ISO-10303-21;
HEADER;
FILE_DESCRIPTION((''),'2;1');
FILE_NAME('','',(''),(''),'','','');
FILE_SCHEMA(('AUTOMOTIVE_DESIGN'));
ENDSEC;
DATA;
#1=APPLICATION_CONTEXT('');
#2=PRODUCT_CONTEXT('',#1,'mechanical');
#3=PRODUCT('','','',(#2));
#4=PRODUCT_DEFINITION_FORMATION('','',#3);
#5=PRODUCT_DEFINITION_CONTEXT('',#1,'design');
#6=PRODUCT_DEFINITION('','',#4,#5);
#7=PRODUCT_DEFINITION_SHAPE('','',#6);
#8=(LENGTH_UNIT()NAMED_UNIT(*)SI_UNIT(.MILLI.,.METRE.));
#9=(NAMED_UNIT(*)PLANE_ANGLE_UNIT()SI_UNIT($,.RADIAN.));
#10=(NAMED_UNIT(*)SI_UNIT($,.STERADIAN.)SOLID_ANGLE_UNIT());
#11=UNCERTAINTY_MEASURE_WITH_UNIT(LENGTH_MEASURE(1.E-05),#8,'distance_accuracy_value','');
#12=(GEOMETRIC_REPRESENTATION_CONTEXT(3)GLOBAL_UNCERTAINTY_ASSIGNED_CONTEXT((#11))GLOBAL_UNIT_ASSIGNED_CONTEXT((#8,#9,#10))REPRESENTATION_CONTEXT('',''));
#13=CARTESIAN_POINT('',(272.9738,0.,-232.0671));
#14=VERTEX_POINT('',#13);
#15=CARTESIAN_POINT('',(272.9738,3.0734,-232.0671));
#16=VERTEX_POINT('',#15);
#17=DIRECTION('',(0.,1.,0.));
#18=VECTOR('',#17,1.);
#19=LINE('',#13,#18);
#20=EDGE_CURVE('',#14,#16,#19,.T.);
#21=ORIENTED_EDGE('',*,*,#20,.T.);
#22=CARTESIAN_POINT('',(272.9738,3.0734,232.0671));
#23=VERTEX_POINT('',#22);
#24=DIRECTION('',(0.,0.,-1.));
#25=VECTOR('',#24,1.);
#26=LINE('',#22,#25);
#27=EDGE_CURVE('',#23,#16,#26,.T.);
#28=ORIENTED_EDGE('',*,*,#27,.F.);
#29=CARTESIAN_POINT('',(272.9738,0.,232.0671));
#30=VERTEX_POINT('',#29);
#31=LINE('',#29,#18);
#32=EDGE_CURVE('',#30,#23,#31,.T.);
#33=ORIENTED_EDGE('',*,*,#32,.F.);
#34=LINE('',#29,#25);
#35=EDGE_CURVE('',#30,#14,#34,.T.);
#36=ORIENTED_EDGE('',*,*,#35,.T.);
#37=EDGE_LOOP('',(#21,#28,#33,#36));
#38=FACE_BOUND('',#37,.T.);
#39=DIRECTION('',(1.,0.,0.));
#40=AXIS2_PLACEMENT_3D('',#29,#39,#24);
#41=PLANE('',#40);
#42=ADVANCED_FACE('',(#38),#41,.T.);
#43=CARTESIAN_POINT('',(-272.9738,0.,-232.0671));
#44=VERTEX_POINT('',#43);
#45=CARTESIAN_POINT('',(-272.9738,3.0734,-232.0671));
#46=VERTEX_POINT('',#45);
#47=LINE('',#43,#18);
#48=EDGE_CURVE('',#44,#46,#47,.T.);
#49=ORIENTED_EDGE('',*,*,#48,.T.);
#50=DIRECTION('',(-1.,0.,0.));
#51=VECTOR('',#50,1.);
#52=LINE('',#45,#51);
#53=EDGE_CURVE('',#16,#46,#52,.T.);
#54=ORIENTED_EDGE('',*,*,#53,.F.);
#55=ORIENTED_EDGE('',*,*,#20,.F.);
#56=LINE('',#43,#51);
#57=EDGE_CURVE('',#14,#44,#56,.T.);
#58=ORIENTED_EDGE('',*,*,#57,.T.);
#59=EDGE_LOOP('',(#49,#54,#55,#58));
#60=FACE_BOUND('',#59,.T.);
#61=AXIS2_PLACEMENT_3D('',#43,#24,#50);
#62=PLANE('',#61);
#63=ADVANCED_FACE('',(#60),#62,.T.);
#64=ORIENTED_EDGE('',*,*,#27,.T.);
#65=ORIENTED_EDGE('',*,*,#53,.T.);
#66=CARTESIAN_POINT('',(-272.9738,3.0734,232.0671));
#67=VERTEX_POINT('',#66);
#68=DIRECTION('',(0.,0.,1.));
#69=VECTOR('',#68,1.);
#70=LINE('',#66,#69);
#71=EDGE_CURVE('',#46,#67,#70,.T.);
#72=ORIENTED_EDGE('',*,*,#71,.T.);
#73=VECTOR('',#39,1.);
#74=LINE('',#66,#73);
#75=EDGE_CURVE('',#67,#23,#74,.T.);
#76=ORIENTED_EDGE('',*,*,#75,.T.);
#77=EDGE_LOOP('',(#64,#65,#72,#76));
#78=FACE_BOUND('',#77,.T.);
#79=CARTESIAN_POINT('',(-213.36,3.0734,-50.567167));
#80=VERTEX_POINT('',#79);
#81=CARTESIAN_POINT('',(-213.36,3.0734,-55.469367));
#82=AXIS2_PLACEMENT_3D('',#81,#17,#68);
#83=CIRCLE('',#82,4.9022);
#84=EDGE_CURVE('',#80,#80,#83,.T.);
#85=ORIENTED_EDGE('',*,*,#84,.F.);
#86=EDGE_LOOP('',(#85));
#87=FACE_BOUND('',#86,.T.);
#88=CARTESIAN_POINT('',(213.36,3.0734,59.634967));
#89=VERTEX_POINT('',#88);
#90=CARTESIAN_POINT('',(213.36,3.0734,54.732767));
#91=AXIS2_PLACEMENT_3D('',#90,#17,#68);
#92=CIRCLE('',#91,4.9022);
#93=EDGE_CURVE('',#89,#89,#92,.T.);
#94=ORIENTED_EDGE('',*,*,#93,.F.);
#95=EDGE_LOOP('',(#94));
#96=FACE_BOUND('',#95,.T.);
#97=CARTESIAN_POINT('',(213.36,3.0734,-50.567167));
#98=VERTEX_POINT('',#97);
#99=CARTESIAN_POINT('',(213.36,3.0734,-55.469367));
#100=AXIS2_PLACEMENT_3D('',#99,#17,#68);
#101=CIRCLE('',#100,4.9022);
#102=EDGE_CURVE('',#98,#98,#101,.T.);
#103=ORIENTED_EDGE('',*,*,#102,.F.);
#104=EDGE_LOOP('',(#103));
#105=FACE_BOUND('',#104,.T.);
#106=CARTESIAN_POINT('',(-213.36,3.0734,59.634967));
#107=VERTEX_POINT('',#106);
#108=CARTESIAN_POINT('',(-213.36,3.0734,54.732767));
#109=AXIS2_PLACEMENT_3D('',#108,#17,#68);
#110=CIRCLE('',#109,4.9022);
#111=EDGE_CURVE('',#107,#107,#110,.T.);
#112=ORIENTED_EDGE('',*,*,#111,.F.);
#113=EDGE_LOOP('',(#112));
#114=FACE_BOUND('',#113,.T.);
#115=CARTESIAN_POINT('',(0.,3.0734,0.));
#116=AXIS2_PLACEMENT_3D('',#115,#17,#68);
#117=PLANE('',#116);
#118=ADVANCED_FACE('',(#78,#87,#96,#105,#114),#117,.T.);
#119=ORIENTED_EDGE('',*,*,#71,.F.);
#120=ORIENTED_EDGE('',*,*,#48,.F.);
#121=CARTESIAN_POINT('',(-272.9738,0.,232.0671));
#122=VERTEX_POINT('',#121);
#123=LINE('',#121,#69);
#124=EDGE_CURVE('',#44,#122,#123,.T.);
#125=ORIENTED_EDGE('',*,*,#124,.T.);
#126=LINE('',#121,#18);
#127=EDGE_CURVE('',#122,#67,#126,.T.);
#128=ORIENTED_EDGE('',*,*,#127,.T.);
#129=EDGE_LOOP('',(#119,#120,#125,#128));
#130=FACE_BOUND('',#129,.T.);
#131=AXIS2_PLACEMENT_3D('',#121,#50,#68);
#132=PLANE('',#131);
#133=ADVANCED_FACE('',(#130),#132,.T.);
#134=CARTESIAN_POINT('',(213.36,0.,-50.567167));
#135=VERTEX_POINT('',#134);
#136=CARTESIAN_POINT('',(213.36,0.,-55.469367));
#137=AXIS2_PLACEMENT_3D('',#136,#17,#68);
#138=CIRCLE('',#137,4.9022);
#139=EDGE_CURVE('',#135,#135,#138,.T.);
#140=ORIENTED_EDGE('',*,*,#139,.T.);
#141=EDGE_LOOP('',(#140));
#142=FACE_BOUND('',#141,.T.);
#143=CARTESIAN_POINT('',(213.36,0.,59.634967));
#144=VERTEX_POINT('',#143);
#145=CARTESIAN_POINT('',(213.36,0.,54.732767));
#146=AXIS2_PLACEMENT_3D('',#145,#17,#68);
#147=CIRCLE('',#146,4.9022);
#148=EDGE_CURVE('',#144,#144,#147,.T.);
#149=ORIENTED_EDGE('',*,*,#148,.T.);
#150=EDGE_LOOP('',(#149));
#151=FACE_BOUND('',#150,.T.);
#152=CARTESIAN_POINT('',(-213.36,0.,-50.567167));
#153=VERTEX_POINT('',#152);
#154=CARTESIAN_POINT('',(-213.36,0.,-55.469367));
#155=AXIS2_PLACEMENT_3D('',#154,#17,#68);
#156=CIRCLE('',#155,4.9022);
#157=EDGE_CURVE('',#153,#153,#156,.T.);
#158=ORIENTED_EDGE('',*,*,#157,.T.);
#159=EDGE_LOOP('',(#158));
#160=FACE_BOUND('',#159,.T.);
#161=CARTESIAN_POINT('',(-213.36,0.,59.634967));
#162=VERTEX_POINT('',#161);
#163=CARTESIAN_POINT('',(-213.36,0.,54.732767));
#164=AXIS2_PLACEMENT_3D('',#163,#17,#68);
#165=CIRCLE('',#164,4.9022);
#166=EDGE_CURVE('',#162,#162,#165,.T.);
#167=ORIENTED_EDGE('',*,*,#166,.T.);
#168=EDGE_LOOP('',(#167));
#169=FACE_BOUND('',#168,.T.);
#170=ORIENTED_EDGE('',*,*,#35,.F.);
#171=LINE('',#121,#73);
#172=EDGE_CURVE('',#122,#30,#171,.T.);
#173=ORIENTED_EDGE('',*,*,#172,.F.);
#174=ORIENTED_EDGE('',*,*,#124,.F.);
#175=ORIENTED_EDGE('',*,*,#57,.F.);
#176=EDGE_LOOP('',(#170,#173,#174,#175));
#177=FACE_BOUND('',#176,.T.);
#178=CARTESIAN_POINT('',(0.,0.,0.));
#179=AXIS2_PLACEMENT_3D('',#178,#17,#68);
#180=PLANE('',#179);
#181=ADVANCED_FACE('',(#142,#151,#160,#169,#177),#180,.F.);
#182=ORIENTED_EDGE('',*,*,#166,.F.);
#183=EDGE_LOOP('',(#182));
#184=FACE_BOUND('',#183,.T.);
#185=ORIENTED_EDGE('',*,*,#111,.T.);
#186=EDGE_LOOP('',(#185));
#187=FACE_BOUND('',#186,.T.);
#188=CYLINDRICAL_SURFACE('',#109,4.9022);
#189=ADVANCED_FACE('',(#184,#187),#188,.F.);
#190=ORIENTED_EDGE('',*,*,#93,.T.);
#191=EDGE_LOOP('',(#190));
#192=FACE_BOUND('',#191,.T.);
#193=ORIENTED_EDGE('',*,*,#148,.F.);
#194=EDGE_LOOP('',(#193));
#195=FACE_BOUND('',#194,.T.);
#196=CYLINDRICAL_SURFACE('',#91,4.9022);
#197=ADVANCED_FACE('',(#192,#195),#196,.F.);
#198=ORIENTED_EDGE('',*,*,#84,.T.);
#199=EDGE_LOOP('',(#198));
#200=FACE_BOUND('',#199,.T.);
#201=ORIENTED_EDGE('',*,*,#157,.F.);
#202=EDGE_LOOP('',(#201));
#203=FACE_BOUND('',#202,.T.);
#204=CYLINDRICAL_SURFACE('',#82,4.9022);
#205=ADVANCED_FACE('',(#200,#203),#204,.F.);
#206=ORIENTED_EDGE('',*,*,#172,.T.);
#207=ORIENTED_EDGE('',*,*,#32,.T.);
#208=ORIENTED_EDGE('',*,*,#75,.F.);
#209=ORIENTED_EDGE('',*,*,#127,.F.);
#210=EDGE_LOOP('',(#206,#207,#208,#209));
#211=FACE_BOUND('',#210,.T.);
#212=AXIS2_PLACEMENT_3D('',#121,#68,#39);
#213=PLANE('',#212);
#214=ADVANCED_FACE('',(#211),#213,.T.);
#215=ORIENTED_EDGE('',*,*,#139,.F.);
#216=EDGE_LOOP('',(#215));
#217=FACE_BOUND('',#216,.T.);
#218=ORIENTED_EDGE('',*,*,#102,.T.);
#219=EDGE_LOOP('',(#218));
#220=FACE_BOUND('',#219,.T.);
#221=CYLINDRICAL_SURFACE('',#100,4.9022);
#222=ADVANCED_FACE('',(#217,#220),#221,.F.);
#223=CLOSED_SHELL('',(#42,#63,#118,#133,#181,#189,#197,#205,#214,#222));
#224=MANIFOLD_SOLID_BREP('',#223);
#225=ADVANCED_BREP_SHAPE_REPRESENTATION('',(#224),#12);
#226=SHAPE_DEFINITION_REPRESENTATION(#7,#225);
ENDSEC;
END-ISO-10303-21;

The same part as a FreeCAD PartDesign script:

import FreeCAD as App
import Part
import Sketcher
from FreeCAD import Vector
Q = App.Units.Quantity


def add_polygon(sketch, points):
    """Adds a closed chain of lines whose ends are joined by coincident constraints."""
    first, n = sketch.GeometryCount, len(points)
    for a, b in zip(points, points[1:] + points[:1]):
        sketch.addGeometry(Part.LineSegment(App.Vector(*a, 0), App.Vector(*b, 0)), False)
    for i in range(n):
        sketch.addConstraint(Sketcher.Constraint("Coincident", first + i, 2, first + (i + 1) % n, 1))

doc = App.newDocument("Part")
body = doc.addObject("PartDesign::Body", "Body")

# Sketch on XZ plane
sketch1 = body.newObject("Sketcher::SketchObject", "Sketch")
sketch1.AttachmentSupport = (doc.getObject("XZ_Plane"), [""])
sketch1.MapMode = "FlatFace"
add_polygon(sketch1, [(-292.1, -251.1933), (-292.1, 251.1933), (292.1, 251.1933), (292.1, -251.1933)])  # lines 0-3
sketch1.addConstraint(Sketcher.Constraint("Vertical", 0))
sketch1.addConstraint(Sketcher.Constraint("Horizontal", 1))
sketch1.addConstraint(Sketcher.Constraint("Vertical", 2))
sketch1.addConstraint(Sketcher.Constraint("Horizontal", 3))
sketch1.addConstraint(Sketcher.Constraint("Symmetric", 0, 2, 2, 2, -1, 1))
sketch1.addConstraint(Sketcher.Constraint("DistanceX", 1, 1, 1, 2, Q("23 in")))
sketch1.addConstraint(Sketcher.Constraint("DistanceY", 0, 1, 0, 2, Q("19.779 in")))
pad1 = body.newObject("PartDesign::Pad", "Pad")
pad1.Profile = sketch1
pad1.Length = Q("0.121 in")
pad1.Reversed = True

# Sketch on XZ plane
sketch2 = body.newObject("Sketcher::SketchObject", "Sketch001")
sketch2.AttachmentSupport = (doc.getObject("XZ_Plane"), [""])
sketch2.MapMode = "FlatFace"
sketch2.AttachmentOffset = App.Placement(Vector(0, 0, -0.121 * 25.4), App.Rotation())
sketch2.addGeometry(Part.Circle(Vector(-213.36, -238.5949, 0), Vector(0, 0, 1), 2.8956), False)
sketch2.addGeometry(Part.Circle(Vector(-213.36, 237.8583, 0), Vector(0, 0, 1), 2.8956), False)
sketch2.addConstraint(Sketcher.Constraint("Equal", 0, 1))
sketch2.addConstraint(Sketcher.Constraint("Vertical", 0, 3, 1, 3))
sketch2.addConstraint(Sketcher.Constraint("Diameter", 0, Q("0.228 in")))
sketch2.addConstraint(Sketcher.Constraint("DistanceX", 0, 3, -1, 1, Q("8.4 in")))
sketch2.addConstraint(Sketcher.Constraint("DistanceY", 0, 3, 1, 3, Q("18.758 in")))
sketch2.addConstraint(Sketcher.Constraint("DistanceY", 0, 3, -1, 1, Q("9.3935 in")))
pocket1 = body.newObject("PartDesign::Pocket", "Pocket")
pocket1.Profile = sketch2
pocket1.Type = "ThroughAll"
pocket1.Reversed = True
doc.recompute()

linearpattern = body.newObject("PartDesign::LinearPattern", "LinearPattern")
linearpattern.Originals = [pocket1]
linearpattern.Direction = (doc.getObject("X_Axis"), [""])
linearpattern.Mode = "offset"
linearpattern.Offset = Q("5.6 in")
linearpattern.Occurrences = 4
body.Tip = linearpattern

# Sketch on XZ plane
sketch3 = body.newObject("Sketcher::SketchObject", "Sketch002")
sketch3.AttachmentSupport = (doc.getObject("XZ_Plane"), [""])
sketch3.MapMode = "FlatFace"
sketch3.AttachmentOffset = App.Placement(Vector(0, 0, -0.121 * 25.4), App.Rotation())
sketch3.addGeometry(Part.Circle(Vector(-279.5016, -165.6715, 0), Vector(0, 0, 1), 2.8956), False)
sketch3.addGeometry(Part.Circle(Vector(279.5016, -165.6715, 0), Vector(0, 0, 1), 2.8956), False)
sketch3.addConstraint(Sketcher.Constraint("Equal", 0, 1))
sketch3.addConstraint(Sketcher.Constraint("Symmetric", 0, 3, 1, 3, -2))
sketch3.addConstraint(Sketcher.Constraint("Diameter", 0, Q("0.228 in")))
sketch3.addConstraint(Sketcher.Constraint("DistanceX", 0, 3, -1, 1, Q("11.004 in")))
sketch3.addConstraint(Sketcher.Constraint("DistanceY", 0, 3, -1, 1, Q("6.5225 in")))
pocket2 = body.newObject("PartDesign::Pocket", "Pocket001")
pocket2.Profile = sketch3
pocket2.Type = "ThroughAll"
pocket2.Reversed = True
doc.recompute()

linearpattern2 = body.newObject("PartDesign::LinearPattern", "LinearPattern001")
linearpattern2.Originals = [pocket2]
linearpattern2.Direction = (doc.getObject("Z_Axis"), [""])
linearpattern2.Mode = "offset"
linearpattern2.Offset = 110.202133
linearpattern2.Occurrences = 4
body.Tip = linearpattern2

# Sketch on XZ plane
sketch4 = body.newObject("Sketcher::SketchObject", "Sketch003")
sketch4.AttachmentSupport = (doc.getObject("XZ_Plane"), [""])
sketch4.MapMode = "FlatFace"
sketch4.AttachmentOffset = App.Placement(Vector(0, 0, -0.121 * 25.4), App.Rotation())
sketch4.addGeometry(Part.Circle(Vector(-213.36, -55.469367, 0), Vector(0, 0, 1), 4.9022), False)
sketch4.addGeometry(Part.Circle(Vector(-213.36, 54.732767, 0), Vector(0, 0, 1), 4.9022), False)
sketch4.addGeometry(Part.Circle(Vector(213.36, 54.732767, 0), Vector(0, 0, 1), 4.9022), False)
sketch4.addGeometry(Part.Circle(Vector(213.36, -55.469367, 0), Vector(0, 0, 1), 4.9022), False)
sketch4.addConstraint(Sketcher.Constraint("Equal", 0, 1))
sketch4.addConstraint(Sketcher.Constraint("Equal", 1, 2))
sketch4.addConstraint(Sketcher.Constraint("Equal", 2, 3))
sketch4.addConstraint(Sketcher.Constraint("Symmetric", 1, 3, 2, 3, -2))
sketch4.addConstraint(Sketcher.Constraint("Symmetric", 0, 3, 3, 3, -2))
sketch4.addConstraint(Sketcher.Constraint("Vertical", 0, 3, 1, 3))
sketch4.addConstraint(Sketcher.Constraint("Diameter", 0, Q("0.386 in")))
sketch4.addConstraint(Sketcher.Constraint("DistanceX", 0, 3, -1, 1, Q("8.4 in")))
sketch4.addConstraint(Sketcher.Constraint("DistanceY", 0, 3, -1, 1, Q("55.469367 mm")))
sketch4.addConstraint(Sketcher.Constraint("DistanceY", -1, 1, 1, 3, Q("54.732767 mm")))
doc.recompute()
hole = body.newObject("PartDesign::Hole", "Hole")
hole.Profile = sketch4
hole.ThreadType = "None"
hole.Diameter = Q("0.386 in")
hole.DepthType = "ThroughAll"
hole.Reversed = True

# Sketch on XZ plane
sketch5 = body.newObject("Sketcher::SketchObject", "Sketch004")
sketch5.AttachmentSupport = (doc.getObject("XZ_Plane"), [""])
sketch5.MapMode = "FlatFace"
sketch5.AttachmentOffset = App.Placement(Vector(0, 0, -0.121 * 25.4), App.Rotation())
add_polygon(sketch5, [(-292.1, -251.1933), (-292.1, 251.1933), (292.1, 251.1933), (292.1, -251.1933)])  # lines 0-3
add_polygon(sketch5, [(272.9738, 232.0671), (-272.9738, 232.0671), (-272.9738, -232.0671), (272.9738, -232.0671)])  # lines 4-7
sketch5.addConstraint(Sketcher.Constraint("Vertical", 0))
sketch5.addConstraint(Sketcher.Constraint("Horizontal", 1))
sketch5.addConstraint(Sketcher.Constraint("Vertical", 2))
sketch5.addConstraint(Sketcher.Constraint("Horizontal", 3))
sketch5.addConstraint(Sketcher.Constraint("Horizontal", 4))
sketch5.addConstraint(Sketcher.Constraint("Vertical", 5))
sketch5.addConstraint(Sketcher.Constraint("Horizontal", 6))
sketch5.addConstraint(Sketcher.Constraint("Vertical", 7))
sketch5.addConstraint(Sketcher.Constraint("Symmetric", 0, 2, 2, 2, -1, 1))
sketch5.addConstraint(Sketcher.Constraint("Symmetric", 4, 2, 6, 2, -1, 1))
sketch5.addConstraint(Sketcher.Constraint("DistanceX", 1, 1, 1, 2, Q("23 in")))
sketch5.addConstraint(Sketcher.Constraint("DistanceX", 4, 2, 4, 1, Q("21.494 in")))
sketch5.addConstraint(Sketcher.Constraint("DistanceY", 0, 1, 0, 2, Q("19.779 in")))
sketch5.addConstraint(Sketcher.Constraint("DistanceY", 5, 2, 5, 1, Q("18.273 in")))
pocket3 = body.newObject("PartDesign::Pocket", "Pocket002")
pocket3.Profile = sketch5
pocket3.Type = "ThroughAll"
pocket3.Reversed = True

doc.recompute()
